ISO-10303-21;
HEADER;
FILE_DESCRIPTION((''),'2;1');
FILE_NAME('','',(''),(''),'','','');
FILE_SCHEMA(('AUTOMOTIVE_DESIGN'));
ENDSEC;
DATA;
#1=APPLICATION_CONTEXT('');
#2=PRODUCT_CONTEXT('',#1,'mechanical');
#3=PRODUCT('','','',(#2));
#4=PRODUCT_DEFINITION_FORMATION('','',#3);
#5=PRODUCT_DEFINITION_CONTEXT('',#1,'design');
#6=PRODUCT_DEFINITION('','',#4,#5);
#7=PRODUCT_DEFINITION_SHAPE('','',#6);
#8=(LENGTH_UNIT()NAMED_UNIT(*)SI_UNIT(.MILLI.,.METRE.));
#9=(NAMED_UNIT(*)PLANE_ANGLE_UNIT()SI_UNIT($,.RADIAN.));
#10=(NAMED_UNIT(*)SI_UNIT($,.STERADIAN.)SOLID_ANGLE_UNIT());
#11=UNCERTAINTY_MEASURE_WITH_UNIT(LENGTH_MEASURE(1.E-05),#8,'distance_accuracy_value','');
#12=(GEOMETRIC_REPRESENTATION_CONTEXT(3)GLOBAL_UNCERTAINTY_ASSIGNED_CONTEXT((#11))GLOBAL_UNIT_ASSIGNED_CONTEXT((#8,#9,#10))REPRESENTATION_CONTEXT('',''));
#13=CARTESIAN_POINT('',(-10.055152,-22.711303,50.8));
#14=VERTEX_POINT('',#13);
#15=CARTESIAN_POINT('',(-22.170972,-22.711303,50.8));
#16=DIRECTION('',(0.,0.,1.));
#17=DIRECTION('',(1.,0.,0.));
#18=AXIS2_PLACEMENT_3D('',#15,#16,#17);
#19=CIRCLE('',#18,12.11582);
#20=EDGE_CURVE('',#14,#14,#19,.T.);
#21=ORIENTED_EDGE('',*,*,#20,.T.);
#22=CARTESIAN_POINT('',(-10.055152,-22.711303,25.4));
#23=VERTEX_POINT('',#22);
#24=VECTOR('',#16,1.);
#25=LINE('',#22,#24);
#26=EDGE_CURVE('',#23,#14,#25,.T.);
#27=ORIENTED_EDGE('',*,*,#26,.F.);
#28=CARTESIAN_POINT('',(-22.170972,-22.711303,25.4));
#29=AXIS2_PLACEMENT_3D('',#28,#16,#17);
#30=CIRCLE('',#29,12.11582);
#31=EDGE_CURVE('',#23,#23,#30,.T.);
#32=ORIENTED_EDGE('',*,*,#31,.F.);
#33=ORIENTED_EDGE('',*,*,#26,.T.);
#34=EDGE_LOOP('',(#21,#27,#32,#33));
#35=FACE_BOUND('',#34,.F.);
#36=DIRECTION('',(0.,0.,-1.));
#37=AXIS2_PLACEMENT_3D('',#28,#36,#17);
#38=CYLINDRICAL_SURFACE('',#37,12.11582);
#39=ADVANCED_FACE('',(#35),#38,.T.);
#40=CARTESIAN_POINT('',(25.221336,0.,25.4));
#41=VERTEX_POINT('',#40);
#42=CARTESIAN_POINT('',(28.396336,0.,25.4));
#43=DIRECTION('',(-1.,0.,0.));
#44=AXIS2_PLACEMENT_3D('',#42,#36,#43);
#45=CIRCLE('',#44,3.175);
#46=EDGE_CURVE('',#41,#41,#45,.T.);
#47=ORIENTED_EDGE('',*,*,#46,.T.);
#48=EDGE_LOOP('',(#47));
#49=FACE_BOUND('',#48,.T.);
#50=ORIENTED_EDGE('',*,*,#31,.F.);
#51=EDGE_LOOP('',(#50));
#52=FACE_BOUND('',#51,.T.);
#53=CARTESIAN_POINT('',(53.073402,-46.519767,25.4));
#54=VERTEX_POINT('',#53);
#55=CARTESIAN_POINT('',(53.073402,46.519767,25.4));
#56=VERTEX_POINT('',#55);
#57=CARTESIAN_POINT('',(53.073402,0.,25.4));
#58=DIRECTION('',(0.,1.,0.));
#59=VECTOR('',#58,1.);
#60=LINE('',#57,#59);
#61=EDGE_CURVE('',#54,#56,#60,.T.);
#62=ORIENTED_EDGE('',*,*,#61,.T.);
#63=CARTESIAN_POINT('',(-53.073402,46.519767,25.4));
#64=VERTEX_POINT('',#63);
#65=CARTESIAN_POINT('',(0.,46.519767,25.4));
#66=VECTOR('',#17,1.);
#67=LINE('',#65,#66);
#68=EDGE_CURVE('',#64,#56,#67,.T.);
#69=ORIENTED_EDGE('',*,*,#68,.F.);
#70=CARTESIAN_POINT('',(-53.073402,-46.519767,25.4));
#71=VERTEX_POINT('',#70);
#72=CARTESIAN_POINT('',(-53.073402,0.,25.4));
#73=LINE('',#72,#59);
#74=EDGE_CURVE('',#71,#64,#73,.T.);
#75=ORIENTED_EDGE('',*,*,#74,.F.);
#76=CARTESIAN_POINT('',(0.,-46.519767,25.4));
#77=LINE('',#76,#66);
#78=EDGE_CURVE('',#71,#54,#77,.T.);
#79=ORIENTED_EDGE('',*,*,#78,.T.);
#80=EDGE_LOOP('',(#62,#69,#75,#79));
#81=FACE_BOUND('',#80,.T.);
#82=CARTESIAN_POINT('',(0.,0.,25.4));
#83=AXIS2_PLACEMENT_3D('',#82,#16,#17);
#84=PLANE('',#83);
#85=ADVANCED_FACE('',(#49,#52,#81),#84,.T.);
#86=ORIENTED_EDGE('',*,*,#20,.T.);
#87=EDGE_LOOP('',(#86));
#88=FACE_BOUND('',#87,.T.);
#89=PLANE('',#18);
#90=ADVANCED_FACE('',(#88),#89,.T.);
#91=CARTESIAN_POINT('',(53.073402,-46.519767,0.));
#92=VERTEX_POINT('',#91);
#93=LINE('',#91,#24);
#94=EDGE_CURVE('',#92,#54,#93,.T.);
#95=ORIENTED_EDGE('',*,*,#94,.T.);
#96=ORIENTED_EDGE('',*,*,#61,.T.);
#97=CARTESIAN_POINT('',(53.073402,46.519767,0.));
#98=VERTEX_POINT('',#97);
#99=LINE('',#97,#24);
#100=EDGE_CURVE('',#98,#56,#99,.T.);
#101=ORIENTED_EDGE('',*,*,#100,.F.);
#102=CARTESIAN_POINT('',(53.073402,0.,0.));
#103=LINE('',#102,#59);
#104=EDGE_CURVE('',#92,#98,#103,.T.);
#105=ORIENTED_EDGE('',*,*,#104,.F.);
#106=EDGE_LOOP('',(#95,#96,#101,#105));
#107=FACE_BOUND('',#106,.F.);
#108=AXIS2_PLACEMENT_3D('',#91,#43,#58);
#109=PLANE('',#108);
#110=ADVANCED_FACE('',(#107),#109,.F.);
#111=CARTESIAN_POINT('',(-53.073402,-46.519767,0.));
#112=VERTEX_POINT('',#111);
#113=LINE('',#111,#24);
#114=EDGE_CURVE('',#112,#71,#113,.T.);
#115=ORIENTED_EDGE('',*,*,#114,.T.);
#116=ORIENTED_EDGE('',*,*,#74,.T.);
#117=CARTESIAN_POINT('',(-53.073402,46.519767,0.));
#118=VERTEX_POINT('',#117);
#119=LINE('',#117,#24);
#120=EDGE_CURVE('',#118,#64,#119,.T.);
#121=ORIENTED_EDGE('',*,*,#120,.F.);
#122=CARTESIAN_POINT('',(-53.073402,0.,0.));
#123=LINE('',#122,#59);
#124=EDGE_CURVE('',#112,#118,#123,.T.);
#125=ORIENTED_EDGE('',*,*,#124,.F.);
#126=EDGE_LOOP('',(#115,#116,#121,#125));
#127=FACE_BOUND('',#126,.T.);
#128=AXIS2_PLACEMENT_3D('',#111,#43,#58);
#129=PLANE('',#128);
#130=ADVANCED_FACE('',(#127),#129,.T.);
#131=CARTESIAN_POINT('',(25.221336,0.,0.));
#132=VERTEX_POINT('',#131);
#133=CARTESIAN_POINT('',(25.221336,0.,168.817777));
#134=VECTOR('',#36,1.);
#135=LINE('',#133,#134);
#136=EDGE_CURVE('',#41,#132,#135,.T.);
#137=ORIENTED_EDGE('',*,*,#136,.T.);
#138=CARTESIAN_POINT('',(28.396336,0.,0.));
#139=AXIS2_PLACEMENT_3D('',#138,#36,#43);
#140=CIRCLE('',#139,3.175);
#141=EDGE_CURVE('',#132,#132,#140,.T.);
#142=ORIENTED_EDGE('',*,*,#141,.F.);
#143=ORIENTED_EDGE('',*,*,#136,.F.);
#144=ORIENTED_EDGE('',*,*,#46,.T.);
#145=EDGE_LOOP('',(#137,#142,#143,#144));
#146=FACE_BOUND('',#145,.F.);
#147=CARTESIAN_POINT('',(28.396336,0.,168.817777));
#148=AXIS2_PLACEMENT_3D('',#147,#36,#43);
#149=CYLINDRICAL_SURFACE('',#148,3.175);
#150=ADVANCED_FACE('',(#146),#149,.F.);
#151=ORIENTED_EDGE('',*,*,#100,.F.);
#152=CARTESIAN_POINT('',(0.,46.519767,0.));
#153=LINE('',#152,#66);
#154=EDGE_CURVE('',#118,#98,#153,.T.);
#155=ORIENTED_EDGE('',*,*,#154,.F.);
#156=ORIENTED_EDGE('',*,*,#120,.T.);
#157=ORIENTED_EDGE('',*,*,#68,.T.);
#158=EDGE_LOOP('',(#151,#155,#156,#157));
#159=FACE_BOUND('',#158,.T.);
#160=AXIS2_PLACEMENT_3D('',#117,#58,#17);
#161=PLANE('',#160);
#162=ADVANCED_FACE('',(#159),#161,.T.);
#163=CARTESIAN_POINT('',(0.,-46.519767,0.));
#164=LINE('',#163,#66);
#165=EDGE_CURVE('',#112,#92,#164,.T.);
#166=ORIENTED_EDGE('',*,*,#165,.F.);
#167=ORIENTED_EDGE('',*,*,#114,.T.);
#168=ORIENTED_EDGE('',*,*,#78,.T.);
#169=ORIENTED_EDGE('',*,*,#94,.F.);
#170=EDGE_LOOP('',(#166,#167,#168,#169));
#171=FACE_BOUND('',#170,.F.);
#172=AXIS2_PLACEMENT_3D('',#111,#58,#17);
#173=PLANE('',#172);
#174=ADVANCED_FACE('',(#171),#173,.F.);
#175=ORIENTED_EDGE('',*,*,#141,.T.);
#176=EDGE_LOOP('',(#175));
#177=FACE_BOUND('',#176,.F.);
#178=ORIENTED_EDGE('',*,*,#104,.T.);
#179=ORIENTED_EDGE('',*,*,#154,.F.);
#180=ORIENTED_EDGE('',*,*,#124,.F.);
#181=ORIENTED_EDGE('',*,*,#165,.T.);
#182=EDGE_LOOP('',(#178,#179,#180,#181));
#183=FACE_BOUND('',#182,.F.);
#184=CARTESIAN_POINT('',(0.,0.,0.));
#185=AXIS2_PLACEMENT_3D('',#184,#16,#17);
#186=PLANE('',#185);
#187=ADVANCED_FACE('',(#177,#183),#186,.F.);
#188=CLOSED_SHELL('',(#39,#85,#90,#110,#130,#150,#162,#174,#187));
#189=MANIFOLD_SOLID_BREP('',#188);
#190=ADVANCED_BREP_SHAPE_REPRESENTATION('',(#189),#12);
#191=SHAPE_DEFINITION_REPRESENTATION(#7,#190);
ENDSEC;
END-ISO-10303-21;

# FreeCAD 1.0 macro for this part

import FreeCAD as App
import Part
import Sketcher

V = App.Vector
Q = App.Units.Quantity


def add_polygon(sketch, points):
    """Adds a closed chain of lines whose ends are joined by coincident constraints."""
    first, n = sketch.GeometryCount, len(points)
    for a, b in zip(points, points[1:] + points[:1]):
        sketch.addGeometry(Part.LineSegment(App.Vector(*a, 0), App.Vector(*b, 0)), False)
    for i in range(n):
        sketch.addConstraint(Sketcher.Constraint("Coincident", first + i, 2, first + (i + 1) % n, 1))

doc = App.newDocument("Part")
params = doc.addObject("Spreadsheet::Sheet", "Params")
for row, (alias, value) in enumerate([
    ("pad1_length", "1 in"),
    ("sketch2_diameter", "0.25 in"),
    ("hole_diameter", "0.25 in"),
    ("pad2_length", "1 in"),
], start=1):
    params.set(f"A{row}", alias)
    params.set(f"B{row}", "=" + value)
    params.setAlias(f"B{row}", alias)

body = doc.addObject("PartDesign::Body", "Body")

# Sketch on XY plane
sketch1 = body.newObject("Sketcher::SketchObject", "Sketch")
sketch1.AttachmentSupport = (doc.getObject("XY_Plane"), [""])
sketch1.MapMode = "FlatFace"
add_polygon(sketch1, [(-53.073402, 46.519767), (-53.073402, -46.519767), (53.073402, -46.519767), (53.073402, 46.519767)])  # lines 0-3
sketch1.addConstraint([
    Sketcher.Constraint("Vertical", 0),
    Sketcher.Constraint("Horizontal", 1),
    Sketcher.Constraint("Vertical", 2),
    Sketcher.Constraint("Horizontal", 3),
    Sketcher.Constraint("Symmetric", 0, 2, 2, 2, -1, 1),
    Sketcher.Constraint("DistanceX", 1, 1, 1, 2, Q("106.146804 mm")),
    Sketcher.Constraint("DistanceY", 0, 2, 0, 1, Q("93.039534 mm")),
])
pad1 = body.newObject("PartDesign::Pad", "Pad")
pad1.Profile = sketch1
pad1.setExpression("Length", "Params.pad1_length")

# Sketch on XY plane
sketch2 = body.newObject("Sketcher::SketchObject", "Sketch001")
sketch2.AttachmentSupport = (doc.getObject("XY_Plane"), [""])
sketch2.MapMode = "FlatFace"
sketch2.AttachmentOffset = App.Placement(V(0, 0, 1 * 25.4), App.Rotation())
sketch2.addGeometry(Part.Circle(V(28.396336, 0, 0), V(0, 0, 1), 3.175), False)
sketch2.addConstraint([
    Sketcher.Constraint("PointOnObject", 0, 3, -1),
    Sketcher.Constraint("Diameter", 0, Q("0.25 in")),
    Sketcher.Constraint("DistanceX", -1, 1, 0, 3, Q("28.396336 mm")),
])
sketch2.setExpression("Constraints[1]", "Params.sketch2_diameter")
doc.recompute()
hole = body.newObject("PartDesign::Hole", "Hole")
hole.Profile = sketch2
hole.ThreadType = "None"
hole.setExpression("Diameter", "Params.hole_diameter")
hole.DepthType = "ThroughAll"

# Sketch on XY plane
sketch3 = body.newObject("Sketcher::SketchObject", "Sketch002")
sketch3.AttachmentSupport = (doc.getObject("XY_Plane"), [""])
sketch3.MapMode = "FlatFace"
sketch3.AttachmentOffset = App.Placement(V(0, 0, 1 * 25.4), App.Rotation())
sketch3.addGeometry(Part.Circle(V(-22.170972, -22.711303, 0), V(0, 0, 1), 12.11582), False)
sketch3.addConstraint([
    Sketcher.Constraint("Diameter", 0, Q("24.23164 mm")),
    Sketcher.Constraint("DistanceX", 0, 3, -1, 1, Q("22.170972 mm")),
    Sketcher.Constraint("DistanceY", 0, 3, -1, 1, Q("22.711303 mm")),
])
pad2 = body.newObject("PartDesign::Pad", "Pad001")
pad2.Profile = sketch3
pad2.setExpression("Length", "Params.pad2_length")

doc.recompute()
